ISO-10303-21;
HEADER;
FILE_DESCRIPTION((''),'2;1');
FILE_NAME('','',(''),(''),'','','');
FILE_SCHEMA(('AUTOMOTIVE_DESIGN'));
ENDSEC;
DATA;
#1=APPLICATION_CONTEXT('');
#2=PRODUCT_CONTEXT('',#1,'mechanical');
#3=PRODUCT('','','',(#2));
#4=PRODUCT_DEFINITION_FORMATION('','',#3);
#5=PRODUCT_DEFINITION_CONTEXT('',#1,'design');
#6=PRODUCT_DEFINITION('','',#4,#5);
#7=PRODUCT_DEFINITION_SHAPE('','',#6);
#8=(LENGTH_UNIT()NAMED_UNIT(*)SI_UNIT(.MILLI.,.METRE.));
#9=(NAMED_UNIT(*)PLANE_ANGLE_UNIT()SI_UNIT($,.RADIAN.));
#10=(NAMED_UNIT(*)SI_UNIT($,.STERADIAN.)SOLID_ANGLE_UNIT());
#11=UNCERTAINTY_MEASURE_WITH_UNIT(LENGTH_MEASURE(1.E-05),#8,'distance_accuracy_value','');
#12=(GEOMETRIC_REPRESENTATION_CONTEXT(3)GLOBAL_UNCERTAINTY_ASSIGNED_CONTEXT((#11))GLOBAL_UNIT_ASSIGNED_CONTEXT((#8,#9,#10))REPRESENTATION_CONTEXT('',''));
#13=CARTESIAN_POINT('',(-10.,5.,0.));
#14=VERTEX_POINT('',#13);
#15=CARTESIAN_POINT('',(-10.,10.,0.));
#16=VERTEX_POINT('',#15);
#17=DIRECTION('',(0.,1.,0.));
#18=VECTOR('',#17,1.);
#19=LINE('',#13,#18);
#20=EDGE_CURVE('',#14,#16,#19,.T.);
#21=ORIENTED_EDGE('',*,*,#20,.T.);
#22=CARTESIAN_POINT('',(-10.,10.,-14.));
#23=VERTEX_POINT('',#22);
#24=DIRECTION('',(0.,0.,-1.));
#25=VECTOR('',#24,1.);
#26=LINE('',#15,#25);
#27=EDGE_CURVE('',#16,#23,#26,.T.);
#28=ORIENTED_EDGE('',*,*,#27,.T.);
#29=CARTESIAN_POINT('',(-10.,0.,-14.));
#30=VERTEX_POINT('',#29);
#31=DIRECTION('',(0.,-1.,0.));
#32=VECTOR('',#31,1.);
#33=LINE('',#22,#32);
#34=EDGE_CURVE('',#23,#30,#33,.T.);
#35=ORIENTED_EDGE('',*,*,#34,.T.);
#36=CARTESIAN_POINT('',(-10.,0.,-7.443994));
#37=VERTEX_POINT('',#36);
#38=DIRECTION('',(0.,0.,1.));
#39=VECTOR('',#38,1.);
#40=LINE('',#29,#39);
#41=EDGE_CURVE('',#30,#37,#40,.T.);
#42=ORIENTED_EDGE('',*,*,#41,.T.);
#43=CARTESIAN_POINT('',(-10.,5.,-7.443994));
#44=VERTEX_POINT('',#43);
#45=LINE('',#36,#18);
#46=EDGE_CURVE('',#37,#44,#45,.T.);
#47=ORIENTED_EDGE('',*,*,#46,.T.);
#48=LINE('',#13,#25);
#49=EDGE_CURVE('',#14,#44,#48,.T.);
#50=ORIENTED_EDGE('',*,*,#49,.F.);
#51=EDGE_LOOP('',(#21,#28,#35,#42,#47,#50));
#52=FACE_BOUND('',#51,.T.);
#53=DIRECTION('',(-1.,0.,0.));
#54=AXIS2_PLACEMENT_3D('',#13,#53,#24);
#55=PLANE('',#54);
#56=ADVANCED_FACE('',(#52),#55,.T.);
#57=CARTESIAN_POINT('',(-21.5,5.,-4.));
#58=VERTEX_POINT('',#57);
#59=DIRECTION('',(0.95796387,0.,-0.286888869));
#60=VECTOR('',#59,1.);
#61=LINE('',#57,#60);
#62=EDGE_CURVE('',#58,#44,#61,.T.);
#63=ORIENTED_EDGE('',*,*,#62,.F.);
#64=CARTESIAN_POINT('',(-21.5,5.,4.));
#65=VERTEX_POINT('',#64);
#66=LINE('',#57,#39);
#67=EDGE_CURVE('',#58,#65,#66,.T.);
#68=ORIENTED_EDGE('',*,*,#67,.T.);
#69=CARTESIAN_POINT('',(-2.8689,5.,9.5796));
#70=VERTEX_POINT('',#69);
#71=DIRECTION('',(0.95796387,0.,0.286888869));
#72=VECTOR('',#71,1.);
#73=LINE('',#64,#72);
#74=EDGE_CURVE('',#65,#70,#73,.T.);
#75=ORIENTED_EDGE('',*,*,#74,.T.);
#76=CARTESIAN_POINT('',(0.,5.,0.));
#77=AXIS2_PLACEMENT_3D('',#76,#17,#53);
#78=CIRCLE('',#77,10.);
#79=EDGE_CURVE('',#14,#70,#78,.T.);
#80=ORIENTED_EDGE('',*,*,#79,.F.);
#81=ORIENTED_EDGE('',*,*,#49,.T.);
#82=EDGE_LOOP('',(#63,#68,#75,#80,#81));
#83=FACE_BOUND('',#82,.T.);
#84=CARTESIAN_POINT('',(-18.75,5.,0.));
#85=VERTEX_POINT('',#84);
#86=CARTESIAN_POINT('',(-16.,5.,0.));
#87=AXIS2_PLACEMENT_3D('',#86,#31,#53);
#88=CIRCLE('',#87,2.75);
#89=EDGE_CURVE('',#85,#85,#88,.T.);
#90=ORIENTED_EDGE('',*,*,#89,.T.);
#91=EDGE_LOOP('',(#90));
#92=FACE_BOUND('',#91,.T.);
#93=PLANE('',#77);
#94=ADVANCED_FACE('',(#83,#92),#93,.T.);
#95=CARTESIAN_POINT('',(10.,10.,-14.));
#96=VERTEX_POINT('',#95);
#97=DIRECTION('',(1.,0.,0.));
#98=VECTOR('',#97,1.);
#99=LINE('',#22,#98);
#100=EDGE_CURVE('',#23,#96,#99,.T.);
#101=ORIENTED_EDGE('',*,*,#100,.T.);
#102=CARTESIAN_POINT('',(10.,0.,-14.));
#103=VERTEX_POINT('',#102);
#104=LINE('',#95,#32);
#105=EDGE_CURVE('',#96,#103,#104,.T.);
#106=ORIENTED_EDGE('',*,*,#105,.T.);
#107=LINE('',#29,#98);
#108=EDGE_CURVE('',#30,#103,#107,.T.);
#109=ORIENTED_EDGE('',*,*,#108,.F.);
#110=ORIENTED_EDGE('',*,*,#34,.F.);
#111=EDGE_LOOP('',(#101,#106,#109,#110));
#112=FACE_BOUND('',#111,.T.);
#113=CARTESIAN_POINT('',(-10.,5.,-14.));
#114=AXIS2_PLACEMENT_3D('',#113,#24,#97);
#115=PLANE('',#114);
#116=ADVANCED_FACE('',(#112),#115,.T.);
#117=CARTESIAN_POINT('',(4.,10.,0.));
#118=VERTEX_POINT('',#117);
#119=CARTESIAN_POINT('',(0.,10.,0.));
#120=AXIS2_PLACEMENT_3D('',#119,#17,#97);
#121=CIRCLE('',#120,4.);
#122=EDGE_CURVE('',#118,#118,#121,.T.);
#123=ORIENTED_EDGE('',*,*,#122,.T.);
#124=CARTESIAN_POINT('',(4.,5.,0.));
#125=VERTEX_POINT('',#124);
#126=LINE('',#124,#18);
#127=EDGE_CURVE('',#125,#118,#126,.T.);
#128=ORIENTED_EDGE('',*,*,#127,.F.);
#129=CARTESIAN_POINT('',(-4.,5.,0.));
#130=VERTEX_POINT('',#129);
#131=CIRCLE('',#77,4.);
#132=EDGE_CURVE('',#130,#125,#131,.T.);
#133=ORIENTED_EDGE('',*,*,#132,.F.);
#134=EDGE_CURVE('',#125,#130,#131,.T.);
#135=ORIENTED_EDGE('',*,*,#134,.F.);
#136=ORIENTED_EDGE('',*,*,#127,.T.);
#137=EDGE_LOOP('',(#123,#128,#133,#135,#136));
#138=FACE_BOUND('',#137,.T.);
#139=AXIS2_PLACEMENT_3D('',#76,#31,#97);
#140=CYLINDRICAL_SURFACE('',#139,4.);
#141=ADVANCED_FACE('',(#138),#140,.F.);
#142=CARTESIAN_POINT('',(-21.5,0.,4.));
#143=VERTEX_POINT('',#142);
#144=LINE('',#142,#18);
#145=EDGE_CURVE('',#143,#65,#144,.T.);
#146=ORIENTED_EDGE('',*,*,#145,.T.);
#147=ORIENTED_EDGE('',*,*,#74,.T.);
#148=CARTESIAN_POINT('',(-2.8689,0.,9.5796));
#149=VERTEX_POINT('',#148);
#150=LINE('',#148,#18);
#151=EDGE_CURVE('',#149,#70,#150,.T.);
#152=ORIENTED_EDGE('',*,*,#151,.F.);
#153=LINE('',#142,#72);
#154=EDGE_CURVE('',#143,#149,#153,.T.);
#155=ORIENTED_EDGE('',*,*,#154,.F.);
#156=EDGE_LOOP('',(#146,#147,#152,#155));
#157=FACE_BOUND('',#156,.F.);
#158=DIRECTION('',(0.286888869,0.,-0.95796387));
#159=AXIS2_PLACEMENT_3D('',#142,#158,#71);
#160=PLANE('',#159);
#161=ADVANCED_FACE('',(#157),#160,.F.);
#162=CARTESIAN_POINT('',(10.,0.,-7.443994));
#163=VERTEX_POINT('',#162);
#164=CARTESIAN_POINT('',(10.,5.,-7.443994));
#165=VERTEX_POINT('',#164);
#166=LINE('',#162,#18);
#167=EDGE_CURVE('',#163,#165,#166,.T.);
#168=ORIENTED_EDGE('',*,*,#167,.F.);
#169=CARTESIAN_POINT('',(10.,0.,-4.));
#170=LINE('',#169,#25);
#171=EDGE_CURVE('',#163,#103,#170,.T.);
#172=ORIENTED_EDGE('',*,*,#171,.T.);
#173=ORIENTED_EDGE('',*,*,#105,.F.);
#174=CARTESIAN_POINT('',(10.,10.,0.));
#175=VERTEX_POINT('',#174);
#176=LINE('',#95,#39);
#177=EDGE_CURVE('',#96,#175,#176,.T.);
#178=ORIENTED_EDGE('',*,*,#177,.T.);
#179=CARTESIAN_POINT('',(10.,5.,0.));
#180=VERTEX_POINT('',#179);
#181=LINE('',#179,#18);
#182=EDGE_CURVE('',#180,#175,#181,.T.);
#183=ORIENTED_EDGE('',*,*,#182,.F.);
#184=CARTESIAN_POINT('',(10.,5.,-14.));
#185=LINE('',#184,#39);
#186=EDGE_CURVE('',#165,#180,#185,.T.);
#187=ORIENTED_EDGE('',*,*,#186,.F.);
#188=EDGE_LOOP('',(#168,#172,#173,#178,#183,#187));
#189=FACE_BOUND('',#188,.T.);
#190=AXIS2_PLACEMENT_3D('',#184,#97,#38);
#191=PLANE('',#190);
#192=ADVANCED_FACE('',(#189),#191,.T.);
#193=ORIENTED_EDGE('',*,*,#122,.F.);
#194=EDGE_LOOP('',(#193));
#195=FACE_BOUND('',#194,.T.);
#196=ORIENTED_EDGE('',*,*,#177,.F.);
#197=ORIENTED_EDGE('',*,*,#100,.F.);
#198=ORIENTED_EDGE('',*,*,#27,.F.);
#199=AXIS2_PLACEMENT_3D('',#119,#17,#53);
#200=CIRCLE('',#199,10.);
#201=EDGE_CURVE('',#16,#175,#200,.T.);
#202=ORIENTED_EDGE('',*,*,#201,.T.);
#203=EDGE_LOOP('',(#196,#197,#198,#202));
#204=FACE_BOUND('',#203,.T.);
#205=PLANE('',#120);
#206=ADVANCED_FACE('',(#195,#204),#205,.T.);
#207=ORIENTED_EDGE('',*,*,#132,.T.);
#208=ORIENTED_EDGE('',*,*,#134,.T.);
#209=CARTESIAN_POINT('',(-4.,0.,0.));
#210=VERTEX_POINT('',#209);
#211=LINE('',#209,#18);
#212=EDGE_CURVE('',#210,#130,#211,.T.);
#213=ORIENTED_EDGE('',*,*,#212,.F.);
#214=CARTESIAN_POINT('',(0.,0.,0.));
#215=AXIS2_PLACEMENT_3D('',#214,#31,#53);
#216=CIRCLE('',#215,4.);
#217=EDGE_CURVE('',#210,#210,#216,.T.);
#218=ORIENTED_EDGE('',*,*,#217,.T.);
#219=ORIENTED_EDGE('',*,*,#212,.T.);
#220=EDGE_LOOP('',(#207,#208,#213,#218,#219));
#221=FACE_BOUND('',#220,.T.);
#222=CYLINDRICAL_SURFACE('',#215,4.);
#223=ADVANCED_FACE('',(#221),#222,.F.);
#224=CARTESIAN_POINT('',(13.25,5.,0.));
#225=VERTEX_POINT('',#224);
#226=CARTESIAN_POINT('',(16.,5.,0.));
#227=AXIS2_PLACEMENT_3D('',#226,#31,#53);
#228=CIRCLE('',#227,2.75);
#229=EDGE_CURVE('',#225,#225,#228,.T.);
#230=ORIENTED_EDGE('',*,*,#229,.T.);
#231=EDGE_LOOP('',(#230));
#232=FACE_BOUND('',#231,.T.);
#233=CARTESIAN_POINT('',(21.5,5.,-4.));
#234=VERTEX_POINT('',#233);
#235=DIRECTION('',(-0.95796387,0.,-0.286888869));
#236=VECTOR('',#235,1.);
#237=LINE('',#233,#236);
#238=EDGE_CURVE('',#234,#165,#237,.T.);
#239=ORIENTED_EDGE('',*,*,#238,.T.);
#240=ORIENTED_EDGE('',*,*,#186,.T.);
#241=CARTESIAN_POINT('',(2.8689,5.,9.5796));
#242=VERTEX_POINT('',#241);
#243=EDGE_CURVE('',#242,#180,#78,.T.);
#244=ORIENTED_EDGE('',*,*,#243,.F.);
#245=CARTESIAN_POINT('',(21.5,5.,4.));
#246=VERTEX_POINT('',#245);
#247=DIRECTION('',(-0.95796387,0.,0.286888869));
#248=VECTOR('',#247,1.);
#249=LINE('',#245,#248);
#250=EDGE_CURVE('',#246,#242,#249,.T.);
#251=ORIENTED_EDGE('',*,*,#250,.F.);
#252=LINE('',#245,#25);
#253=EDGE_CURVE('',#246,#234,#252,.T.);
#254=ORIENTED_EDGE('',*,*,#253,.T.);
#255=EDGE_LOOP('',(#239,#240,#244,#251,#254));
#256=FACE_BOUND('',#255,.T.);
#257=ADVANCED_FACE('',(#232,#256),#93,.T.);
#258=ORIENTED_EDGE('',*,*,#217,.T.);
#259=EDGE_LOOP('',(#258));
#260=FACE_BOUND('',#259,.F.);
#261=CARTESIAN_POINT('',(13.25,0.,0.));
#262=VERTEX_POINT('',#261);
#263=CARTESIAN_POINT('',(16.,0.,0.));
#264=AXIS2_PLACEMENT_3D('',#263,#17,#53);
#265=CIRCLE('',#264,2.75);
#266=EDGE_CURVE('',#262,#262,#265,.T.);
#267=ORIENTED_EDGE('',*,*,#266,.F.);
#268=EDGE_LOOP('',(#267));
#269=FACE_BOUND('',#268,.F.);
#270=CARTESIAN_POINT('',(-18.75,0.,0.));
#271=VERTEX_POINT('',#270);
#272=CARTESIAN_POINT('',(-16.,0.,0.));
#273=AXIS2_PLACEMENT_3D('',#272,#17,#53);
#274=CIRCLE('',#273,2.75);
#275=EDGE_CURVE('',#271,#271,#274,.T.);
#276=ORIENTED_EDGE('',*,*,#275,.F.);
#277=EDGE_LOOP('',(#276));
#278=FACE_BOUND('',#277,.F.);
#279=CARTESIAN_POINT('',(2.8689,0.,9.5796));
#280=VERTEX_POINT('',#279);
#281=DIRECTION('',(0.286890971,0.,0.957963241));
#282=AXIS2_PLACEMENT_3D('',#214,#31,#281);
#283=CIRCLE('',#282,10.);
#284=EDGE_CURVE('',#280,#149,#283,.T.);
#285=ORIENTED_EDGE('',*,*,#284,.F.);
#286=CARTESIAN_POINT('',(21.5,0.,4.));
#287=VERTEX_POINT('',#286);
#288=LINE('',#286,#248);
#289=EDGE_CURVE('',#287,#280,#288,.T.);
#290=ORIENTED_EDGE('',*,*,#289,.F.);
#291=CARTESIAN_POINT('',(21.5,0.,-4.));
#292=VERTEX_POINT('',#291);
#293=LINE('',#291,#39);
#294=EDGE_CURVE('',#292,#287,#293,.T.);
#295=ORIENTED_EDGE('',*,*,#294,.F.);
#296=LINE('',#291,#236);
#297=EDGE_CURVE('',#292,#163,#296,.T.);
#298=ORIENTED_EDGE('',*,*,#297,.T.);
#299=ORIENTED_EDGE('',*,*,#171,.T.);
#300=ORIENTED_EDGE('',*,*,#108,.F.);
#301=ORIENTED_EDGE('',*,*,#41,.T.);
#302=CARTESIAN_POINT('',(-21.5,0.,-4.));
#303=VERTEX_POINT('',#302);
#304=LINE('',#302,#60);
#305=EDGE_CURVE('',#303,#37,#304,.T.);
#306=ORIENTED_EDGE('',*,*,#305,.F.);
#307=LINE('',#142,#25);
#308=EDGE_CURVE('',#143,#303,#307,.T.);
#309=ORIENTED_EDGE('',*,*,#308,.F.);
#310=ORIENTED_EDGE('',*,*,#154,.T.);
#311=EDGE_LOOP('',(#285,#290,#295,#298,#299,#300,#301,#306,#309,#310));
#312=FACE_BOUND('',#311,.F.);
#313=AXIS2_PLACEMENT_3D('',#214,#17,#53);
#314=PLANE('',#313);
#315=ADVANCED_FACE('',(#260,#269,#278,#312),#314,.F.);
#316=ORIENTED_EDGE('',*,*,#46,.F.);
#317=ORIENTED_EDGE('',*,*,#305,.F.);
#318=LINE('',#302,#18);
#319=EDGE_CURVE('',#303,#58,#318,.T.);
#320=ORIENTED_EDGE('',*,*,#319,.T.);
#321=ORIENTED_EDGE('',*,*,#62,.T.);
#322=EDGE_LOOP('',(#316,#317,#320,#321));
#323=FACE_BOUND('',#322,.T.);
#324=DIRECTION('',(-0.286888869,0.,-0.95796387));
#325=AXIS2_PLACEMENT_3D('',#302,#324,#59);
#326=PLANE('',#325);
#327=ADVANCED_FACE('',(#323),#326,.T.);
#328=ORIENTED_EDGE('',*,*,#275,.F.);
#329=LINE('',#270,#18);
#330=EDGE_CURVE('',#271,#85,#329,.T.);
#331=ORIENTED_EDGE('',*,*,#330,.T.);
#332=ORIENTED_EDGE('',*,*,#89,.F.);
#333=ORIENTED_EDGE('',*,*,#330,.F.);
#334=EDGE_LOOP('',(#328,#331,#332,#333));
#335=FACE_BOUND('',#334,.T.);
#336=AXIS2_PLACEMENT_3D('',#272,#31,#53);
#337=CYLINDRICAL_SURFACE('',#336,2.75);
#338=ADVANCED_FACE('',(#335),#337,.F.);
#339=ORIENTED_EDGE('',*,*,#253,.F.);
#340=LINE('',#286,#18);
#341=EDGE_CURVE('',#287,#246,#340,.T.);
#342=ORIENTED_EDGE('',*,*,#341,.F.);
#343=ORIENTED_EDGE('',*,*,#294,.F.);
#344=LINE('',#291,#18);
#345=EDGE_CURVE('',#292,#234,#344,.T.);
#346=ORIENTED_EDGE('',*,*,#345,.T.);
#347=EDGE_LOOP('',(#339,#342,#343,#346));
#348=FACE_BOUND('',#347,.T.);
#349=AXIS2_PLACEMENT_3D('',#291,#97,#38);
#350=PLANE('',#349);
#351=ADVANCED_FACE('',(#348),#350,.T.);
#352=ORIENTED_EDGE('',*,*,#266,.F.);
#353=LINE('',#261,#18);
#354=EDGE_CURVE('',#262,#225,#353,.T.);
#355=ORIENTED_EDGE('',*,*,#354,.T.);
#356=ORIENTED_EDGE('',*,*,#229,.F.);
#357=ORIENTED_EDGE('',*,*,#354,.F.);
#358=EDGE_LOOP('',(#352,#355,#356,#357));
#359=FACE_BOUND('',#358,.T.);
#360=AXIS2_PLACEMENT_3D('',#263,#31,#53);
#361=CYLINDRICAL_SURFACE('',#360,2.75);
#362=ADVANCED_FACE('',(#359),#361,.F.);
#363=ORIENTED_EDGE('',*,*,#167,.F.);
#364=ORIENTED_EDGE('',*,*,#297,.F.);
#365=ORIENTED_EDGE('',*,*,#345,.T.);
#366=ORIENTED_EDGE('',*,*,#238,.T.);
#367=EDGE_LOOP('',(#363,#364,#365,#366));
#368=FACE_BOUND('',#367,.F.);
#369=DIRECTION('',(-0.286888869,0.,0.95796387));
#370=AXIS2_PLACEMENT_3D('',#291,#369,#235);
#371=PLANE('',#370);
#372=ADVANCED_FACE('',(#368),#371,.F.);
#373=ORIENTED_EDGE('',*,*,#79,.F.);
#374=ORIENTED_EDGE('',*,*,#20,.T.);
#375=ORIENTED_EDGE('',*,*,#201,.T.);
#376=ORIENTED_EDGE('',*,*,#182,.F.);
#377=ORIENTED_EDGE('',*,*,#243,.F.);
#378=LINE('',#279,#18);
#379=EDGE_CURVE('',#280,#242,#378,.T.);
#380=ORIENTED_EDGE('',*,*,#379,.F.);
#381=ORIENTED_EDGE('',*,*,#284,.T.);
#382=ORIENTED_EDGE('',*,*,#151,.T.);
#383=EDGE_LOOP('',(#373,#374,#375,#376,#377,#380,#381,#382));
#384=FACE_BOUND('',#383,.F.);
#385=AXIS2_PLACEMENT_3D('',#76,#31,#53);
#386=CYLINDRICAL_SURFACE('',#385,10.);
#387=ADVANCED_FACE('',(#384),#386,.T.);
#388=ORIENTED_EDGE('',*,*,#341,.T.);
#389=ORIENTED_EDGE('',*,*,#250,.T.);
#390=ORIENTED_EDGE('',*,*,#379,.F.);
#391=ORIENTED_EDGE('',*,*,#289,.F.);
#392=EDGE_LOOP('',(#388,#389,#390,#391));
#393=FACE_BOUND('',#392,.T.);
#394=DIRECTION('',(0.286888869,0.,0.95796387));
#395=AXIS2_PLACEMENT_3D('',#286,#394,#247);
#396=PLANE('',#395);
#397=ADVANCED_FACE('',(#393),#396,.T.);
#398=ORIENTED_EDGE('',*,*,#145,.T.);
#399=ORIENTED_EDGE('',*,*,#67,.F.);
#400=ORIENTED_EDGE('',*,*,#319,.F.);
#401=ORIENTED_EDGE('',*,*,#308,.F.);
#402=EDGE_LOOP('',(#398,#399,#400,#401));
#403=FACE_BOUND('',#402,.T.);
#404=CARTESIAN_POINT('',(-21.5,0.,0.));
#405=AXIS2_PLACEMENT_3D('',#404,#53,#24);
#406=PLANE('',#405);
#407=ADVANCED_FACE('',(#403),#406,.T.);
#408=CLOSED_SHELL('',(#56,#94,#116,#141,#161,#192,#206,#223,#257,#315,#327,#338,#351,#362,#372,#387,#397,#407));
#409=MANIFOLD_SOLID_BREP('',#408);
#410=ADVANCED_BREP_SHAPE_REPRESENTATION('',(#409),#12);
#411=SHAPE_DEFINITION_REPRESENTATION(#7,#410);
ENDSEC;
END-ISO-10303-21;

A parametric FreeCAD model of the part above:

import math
import FreeCAD as App
import Part
import Sketcher

V = App.Vector

doc = App.newDocument("Part")
body = doc.addObject("PartDesign::Body", "Body")

sketch1 = body.newObject("Sketcher::SketchObject", "Sketch")
sketch1.AttachmentSupport = (doc.getObject("XZ_Plane"), [""])
sketch1.MapMode = "FlatFace"
sketch1.addGeometry([
    Part.LineSegment(V(-21.5, -4, 0), V(-21.5, 4, 0)),
    Part.LineSegment(V(-21.5, 4, 0), V(-2.8689, 9.5796, 0)),
    Part.ArcOfCircle(Part.Circle(V(0, 0, 0), V(0, 0, 1), 10), math.radians(73.328086), math.radians(106.671914)),
    Part.LineSegment(V(2.8689, 9.5796, 0), V(21.5, 4, 0)),
    Part.LineSegment(V(21.5, 4, 0), V(21.5, -4, 0)),
    Part.LineSegment(V(21.5, -4, 0), V(10, -7.443994, 0)),
    Part.LineSegment(V(10, -7.443994, 0), V(10, -14, 0)),
    Part.LineSegment(V(10, -14, 0), V(-10, -14, 0)),
    Part.LineSegment(V(-10, -14, 0), V(-10, -7.443994, 0)),
    Part.LineSegment(V(-10, -7.443994, 0), V(-21.5, -4, 0)),
    Part.Circle(V(0, 0, 0), V(0, 0, 1), 4),
    Part.Circle(V(-16, 0, 0), V(0, 0, 1), 2.75),
    Part.Circle(V(16, 0, 0), V(0, 0, 1), 2.75),
], False)
sketch1.addConstraint([
    Sketcher.Constraint("Coincident", 0, 2, 1, 1),
    Sketcher.Constraint("Tangent", 1, 2, 2, 2),
    Sketcher.Constraint("Tangent", 2, 1, 3, 1),
    Sketcher.Constraint("Coincident", 3, 2, 4, 1),
    Sketcher.Constraint("Coincident", 4, 2, 5, 1),
    Sketcher.Constraint("Coincident", 5, 2, 6, 1),
    Sketcher.Constraint("Coincident", 6, 2, 7, 1),
    Sketcher.Constraint("Coincident", 7, 2, 8, 1),
    Sketcher.Constraint("Coincident", 8, 2, 9, 1),
    Sketcher.Constraint("Coincident", 9, 2, 0, 1),
    Sketcher.Constraint("Vertical", 0),
    Sketcher.Constraint("Vertical", 4),
    Sketcher.Constraint("Vertical", 6),
    Sketcher.Constraint("Horizontal", 7),
    Sketcher.Constraint("Vertical", 8),
    Sketcher.Constraint("Coincident", 2, 3, -1, 1),
    Sketcher.Constraint("Coincident", 10, 3, -1, 1),
    Sketcher.Constraint("Equal", 11, 12),
    Sketcher.Constraint("Symmetric", 11, 3, 12, 3, -1, 1),
    Sketcher.Constraint("Symmetric", 0, 2, 4, 2, -1, 1),
    Sketcher.Constraint("Symmetric", 5, 2, 8, 2, -2),
    Sketcher.Constraint("PointOnObject", 11, 3, -1),
    Sketcher.Constraint("Parallel", 1, 5),
    Sketcher.Constraint("Parallel", 3, 9),
    Sketcher.Constraint("Horizontal", 1, 2, 2, 1),
    Sketcher.Constraint("Diameter", 10, 8.0),
    Sketcher.Constraint("Radius", 2, 10.0),
    Sketcher.Constraint("Diameter", 11, 5.5),
    Sketcher.Constraint("DistanceX", 7, 2, 7, 1, 20.0),
    Sketcher.Constraint("DistanceY", 0, 1, 0, 2, 8.0),
    Sketcher.Constraint("DistanceX", 11, 3, -1, 1, 16.0),
    Sketcher.Constraint("DistanceY", 6, 2, 4, 2, 10.0),
    Sketcher.Constraint("DistanceX", 0, 2, 11, 3, 5.5),
])
pad1 = body.newObject("PartDesign::Pad", "Pad")
pad1.Profile = sketch1
pad1.Length = 5
pad1.Reversed = True

sketch2 = body.newObject("Sketcher::SketchObject", "Sketch001")
sketch2.AttachmentSupport = (doc.getObject("XZ_Plane"), [""])
sketch2.MapMode = "FlatFace"
sketch2.AttachmentOffset = App.Placement(V(0, 0, -5), App.Rotation())
sketch2.addGeometry([
    Part.LineSegment(V(-10, -14, 0), V(-10, 0, 0)),
    Part.ArcOfCircle(Part.Circle(V(0, 0, 0), V(0, 0, 1), 10), math.radians(0), math.radians(180)),
    Part.LineSegment(V(10, 0, 0), V(10, -14, 0)),
    Part.LineSegment(V(10, -14, 0), V(-10, -14, 0)),
    Part.Circle(V(0, 0, 0), V(0, 0, 1), 4),
], False)
sketch2.addConstraint([
    Sketcher.Constraint("Tangent", 0, 2, 1, 2),
    Sketcher.Constraint("Tangent", 1, 1, 2, 1),
    Sketcher.Constraint("Coincident", 2, 2, 3, 1),
    Sketcher.Constraint("Coincident", 3, 2, 0, 1),
    Sketcher.Constraint("Vertical", 0),
    Sketcher.Constraint("Vertical", 2),
    Sketcher.Constraint("Horizontal", 3),
    Sketcher.Constraint("Coincident", 1, 3, -1, 1),
    Sketcher.Constraint("Coincident", 4, 3, -1, 1),
    Sketcher.Constraint("Radius", 1, 10.0),
    Sketcher.Constraint("Diameter", 4, 8.0),
    Sketcher.Constraint("DistanceY", 0, 1, 0, 2, 14.0),
])
pad2 = body.newObject("PartDesign::Pad", "Pad001")
pad2.Profile = sketch2
pad2.Length = 5
pad2.Reversed = True

doc.recompute()
